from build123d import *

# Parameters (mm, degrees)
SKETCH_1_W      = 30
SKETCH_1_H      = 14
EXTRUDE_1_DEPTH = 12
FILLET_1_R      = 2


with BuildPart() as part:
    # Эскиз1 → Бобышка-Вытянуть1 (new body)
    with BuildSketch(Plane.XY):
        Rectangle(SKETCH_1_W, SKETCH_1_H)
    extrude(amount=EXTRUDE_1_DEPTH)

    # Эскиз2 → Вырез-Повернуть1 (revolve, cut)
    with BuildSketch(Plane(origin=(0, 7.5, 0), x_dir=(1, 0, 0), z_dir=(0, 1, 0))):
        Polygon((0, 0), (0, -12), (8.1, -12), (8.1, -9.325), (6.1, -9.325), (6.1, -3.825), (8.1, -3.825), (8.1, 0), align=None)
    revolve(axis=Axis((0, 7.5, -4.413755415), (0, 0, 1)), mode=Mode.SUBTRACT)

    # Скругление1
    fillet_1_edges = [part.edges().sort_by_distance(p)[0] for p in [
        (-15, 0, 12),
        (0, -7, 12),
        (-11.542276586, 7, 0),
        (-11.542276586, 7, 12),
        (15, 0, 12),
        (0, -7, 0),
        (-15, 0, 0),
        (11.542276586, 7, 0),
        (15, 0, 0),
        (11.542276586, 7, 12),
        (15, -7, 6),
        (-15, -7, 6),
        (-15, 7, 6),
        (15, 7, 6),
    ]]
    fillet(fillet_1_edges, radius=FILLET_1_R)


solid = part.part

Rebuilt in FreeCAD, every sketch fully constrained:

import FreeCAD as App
import Part
import Sketcher

V = App.Vector


def edges_at(feature, points):
    """Names of the edges that pass closest to the given points."""
    edges = feature.Shape.Edges
    near = lambda p: min(range(len(edges)), key=lambda i: edges[i].distToShape(Part.Vertex(*p))[0])
    return sorted({f"Edge{near(p) + 1}" for p in points})


def add_polygon(sketch, points):
    """Adds a closed chain of lines whose ends are joined by coincident constraints."""
    first, n = sketch.GeometryCount, len(points)
    for a, b in zip(points, points[1:] + points[:1]):
        sketch.addGeometry(Part.LineSegment(App.Vector(*a, 0), App.Vector(*b, 0)), False)
    for i in range(n):
        sketch.addConstraint(Sketcher.Constraint("Coincident", first + i, 2, first + (i + 1) % n, 1))

doc = App.newDocument("Part")
body = doc.addObject("PartDesign::Body", "Body")

sketch1 = doc.addObject("Sketcher::SketchObject", "Sketch")
body.addObject(sketch1)
sketch1.AttachmentSupport = (doc.XY_Plane, [""])
sketch1.MapMode = "FlatFace"
add_polygon(sketch1, [(-15, 7), (-15, -7), (15, -7), (15, 7)])
sketch1.addConstraint([
    Sketcher.Constraint("Vertical", 0),
    Sketcher.Constraint("Horizontal", 1),
    Sketcher.Constraint("Vertical", 2),
    Sketcher.Constraint("Horizontal", 3),
    Sketcher.Constraint("Symmetric", 0, 2, 2, 2, -1, 1),
    Sketcher.Constraint("DistanceX", 1, 1, 1, 2, 30.0),
    Sketcher.Constraint("DistanceY", 0, 2, 0, 1, 14.0),
])
pad1 = doc.addObject("PartDesign::Pad", "Pad")
body.addObject(pad1)
pad1.Profile = sketch1
pad1.Length = 12

sketch2 = doc.addObject("Sketcher::SketchObject", "Sketch001")
body.addObject(sketch2)
sketch2.AttachmentSupport = (doc.XZ_Plane, [""])
sketch2.MapMode = "FlatFace"
sketch2.AttachmentOffset = App.Placement(V(0, 0, -7.5), App.Rotation())
add_polygon(sketch2, [(0, 0), (0, 12), (8.1, 12), (8.1, 9.325), (6.1, 9.325), (6.1, 3.825), (8.1, 3.825), (8.1, 0)])
sketch2.addConstraint([
    Sketcher.Constraint("Vertical", 0),
    Sketcher.Constraint("Horizontal", 1),
    Sketcher.Constraint("Vertical", 2),
    Sketcher.Constraint("Horizontal", 3),
    Sketcher.Constraint("Vertical", 4),
    Sketcher.Constraint("Horizontal", 5),
    Sketcher.Constraint("Vertical", 6),
    Sketcher.Constraint("Horizontal", 7),
    Sketcher.Constraint("Coincident", 7, 2, -1, 1),
    Sketcher.Constraint("Vertical", 2, 2, 5, 2),
    Sketcher.Constraint("DistanceX", 3, 2, 3, 1, 2.0),
    Sketcher.Constraint("DistanceY", 0, 1, 0, 2, 12.0),
    Sketcher.Constraint("DistanceX", 1, 1, 1, 2, 8.1),
    Sketcher.Constraint("DistanceY", 4, 2, 4, 1, 5.5),
    Sketcher.Constraint("DistanceY", 2, 2, 2, 1, 2.675),
])
groove = doc.addObject("PartDesign::Groove", "Groove")
body.addObject(groove)
groove.Profile = sketch2
groove.ReferenceAxis = (sketch2, ["V_Axis"])
groove.Angle = 360
doc.recompute()

fillet = doc.addObject("PartDesign::Fillet", "Fillet")
body.addObject(fillet)
fillet.Base = (groove, edges_at(groove, [
    (-15, 0, 12),
    (0, -7, 12),
    (-11.542, 7, 0),
    (-11.542, 7, 12),
    (15, 0, 12),
    (0, -7, 0),
    (-15, 0, 0),
    (11.542, 7, 0),
    (15, 0, 0),
    (11.542, 7, 12),
    (15, -7, 6),
    (-15, -7, 6),
    (-15, 7, 6),
    (15, 7, 6),
]))
fillet.Radius = 2

doc.recompute()
